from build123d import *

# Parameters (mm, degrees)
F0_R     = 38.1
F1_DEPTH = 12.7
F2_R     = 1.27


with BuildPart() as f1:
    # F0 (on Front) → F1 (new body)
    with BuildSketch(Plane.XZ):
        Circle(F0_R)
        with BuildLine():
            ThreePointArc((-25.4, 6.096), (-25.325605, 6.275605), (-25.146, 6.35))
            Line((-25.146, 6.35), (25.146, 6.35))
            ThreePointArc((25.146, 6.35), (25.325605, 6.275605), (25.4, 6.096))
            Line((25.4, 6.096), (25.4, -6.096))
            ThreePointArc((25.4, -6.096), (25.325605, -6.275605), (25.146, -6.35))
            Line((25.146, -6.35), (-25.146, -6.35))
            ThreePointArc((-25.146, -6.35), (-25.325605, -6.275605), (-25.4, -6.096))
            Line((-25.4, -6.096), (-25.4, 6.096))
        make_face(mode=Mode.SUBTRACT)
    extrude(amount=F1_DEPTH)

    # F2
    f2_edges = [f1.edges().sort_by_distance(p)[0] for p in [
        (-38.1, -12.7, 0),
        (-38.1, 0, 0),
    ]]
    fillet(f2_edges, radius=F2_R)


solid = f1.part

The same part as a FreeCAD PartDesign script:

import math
import FreeCAD as App
import Part
import Sketcher

V = App.Vector
Q = App.Units.Quantity


def edges_at(feature, points):
    """Names of the edges that pass closest to the given points."""
    edges = feature.Shape.Edges
    near = lambda p: min(range(len(edges)), key=lambda i: edges[i].distToShape(Part.Vertex(*p))[0])
    return sorted({f"Edge{near(p) + 1}" for p in points})

doc = App.newDocument("Part")
body = doc.addObject("PartDesign::Body", "Body")

# Sketch on XZ plane
sketch1 = body.newObject("Sketcher::SketchObject", "Sketch")
sketch1.AttachmentSupport = (doc.getObject("XZ_Plane"), [""])
sketch1.MapMode = "FlatFace"
sketch1.addGeometry(Part.Circle(V(0, 0, 0), V(0, 0, 1), 38.1), False)
sketch1.addGeometry(Part.LineSegment(V(-25.4, -6.1, 0), V(-25.4, 6.1, 0)), False)
sketch1.addGeometry(Part.ArcOfCircle(Part.Circle(V(-25.15, 6.1, 0), V(0, 0, 1), 0.25), math.radians(90), math.radians(180)), False)
sketch1.addGeometry(Part.LineSegment(V(-25.15, 6.35, 0), V(25.15, 6.35, 0)), False)
sketch1.addGeometry(Part.ArcOfCircle(Part.Circle(V(25.15, 6.1, 0), V(0, 0, 1), 0.25), math.radians(0), math.radians(90)), False)
sketch1.addGeometry(Part.LineSegment(V(25.4, 6.1, 0), V(25.4, -6.1, 0)), False)
sketch1.addGeometry(Part.ArcOfCircle(Part.Circle(V(25.15, -6.1, 0), V(0, 0, 1), 0.25), math.radians(-90), math.radians(0)), False)
sketch1.addGeometry(Part.LineSegment(V(25.15, -6.35, 0), V(-25.15, -6.35, 0)), False)
sketch1.addGeometry(Part.ArcOfCircle(Part.Circle(V(-25.15, -6.1, 0), V(0, 0, 1), 0.25), math.radians(-180), math.radians(-90)), False)
sketch1.addConstraint(Sketcher.Constraint("Tangent", 1, 2, 2, 2))
sketch1.addConstraint(Sketcher.Constraint("Tangent", 2, 1, 3, 1))
sketch1.addConstraint(Sketcher.Constraint("Tangent", 3, 2, 4, 2))
sketch1.addConstraint(Sketcher.Constraint("Tangent", 4, 1, 5, 1))
sketch1.addConstraint(Sketcher.Constraint("Tangent", 5, 2, 6, 2))
sketch1.addConstraint(Sketcher.Constraint("Tangent", 6, 1, 7, 1))
sketch1.addConstraint(Sketcher.Constraint("Tangent", 7, 2, 8, 2))
sketch1.addConstraint(Sketcher.Constraint("Tangent", 8, 1, 1, 1))
sketch1.addConstraint(Sketcher.Constraint("Vertical", 1))
sketch1.addConstraint(Sketcher.Constraint("Horizontal", 3))
sketch1.addConstraint(Sketcher.Constraint("Vertical", 5))
sketch1.addConstraint(Sketcher.Constraint("Horizontal", 7))
sketch1.addConstraint(Sketcher.Constraint("Coincident", 0, 3, -1, 1))
sketch1.addConstraint(Sketcher.Constraint("Equal", 2, 4))
sketch1.addConstraint(Sketcher.Constraint("Equal", 4, 6))
sketch1.addConstraint(Sketcher.Constraint("Equal", 6, 8))
sketch1.addConstraint(Sketcher.Constraint("Symmetric", 2, 3, 6, 3, -1, 1))
sketch1.addConstraint(Sketcher.Constraint("Diameter", 0, Q("3 in")))
sketch1.addConstraint(Sketcher.Constraint("Radius", 2, Q("0.01 in")))
sketch1.addConstraint(Sketcher.Constraint("DistanceX", 1, 2, -1, 1, Q("1 in")))
sketch1.addConstraint(Sketcher.Constraint("DistanceY", 1, 1, 1, 2, Q("0.48 in")))
pad1 = body.newObject("PartDesign::Pad", "Pad")
pad1.Profile = sketch1
pad1.Length = Q("0.5 in")
doc.recompute()

fillet = body.newObject("PartDesign::Fillet", "Fillet")
fillet.Base = (pad1, edges_at(pad1, [(-38.1, -12.7, 0), (-38.1, 0, 0)]))
fillet.Radius = Q("0.05 in")

doc.recompute()
